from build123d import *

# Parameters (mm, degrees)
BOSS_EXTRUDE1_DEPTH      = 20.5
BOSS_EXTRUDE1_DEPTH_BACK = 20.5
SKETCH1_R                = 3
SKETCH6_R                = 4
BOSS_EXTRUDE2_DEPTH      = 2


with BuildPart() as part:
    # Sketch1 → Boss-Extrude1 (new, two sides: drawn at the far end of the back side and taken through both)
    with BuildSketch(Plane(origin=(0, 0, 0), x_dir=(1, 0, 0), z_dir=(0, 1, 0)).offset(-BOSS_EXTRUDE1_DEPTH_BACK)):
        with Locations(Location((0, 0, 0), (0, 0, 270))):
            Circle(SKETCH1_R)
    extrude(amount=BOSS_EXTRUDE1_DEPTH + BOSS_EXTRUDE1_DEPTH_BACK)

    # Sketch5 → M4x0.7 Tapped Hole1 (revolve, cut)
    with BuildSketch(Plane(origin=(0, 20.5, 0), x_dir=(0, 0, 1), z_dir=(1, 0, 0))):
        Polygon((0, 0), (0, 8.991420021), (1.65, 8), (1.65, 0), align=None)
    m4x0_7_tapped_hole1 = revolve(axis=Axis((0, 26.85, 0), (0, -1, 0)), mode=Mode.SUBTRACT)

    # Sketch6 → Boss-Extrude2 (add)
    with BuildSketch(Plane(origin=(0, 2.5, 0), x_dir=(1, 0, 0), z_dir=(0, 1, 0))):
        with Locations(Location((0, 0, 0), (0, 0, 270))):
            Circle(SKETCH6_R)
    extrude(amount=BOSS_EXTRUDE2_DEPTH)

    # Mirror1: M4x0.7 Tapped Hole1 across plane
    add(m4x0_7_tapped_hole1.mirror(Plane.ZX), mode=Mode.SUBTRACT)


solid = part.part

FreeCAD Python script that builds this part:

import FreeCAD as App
import Part
import Sketcher

V = App.Vector
Q = App.Units.Quantity


def add_polygon(sketch, points):
    """Adds a closed chain of lines whose ends are joined by coincident constraints."""
    first, n = sketch.GeometryCount, len(points)
    for a, b in zip(points, points[1:] + points[:1]):
        sketch.addGeometry(Part.LineSegment(App.Vector(*a, 0), App.Vector(*b, 0)), False)
    for i in range(n):
        sketch.addConstraint(Sketcher.Constraint("Coincident", first + i, 2, first + (i + 1) % n, 1))

doc = App.newDocument("Part")
body = doc.addObject("PartDesign::Body", "Body")

# Sketch on XZ plane
sketch1 = body.newObject("Sketcher::SketchObject", "Sketch")
sketch1.AttachmentSupport = (doc.getObject("XZ_Plane"), [""])
sketch1.MapMode = "FlatFace"
sketch1.addGeometry(Part.Circle(V(0, 0, 0), V(0, 0, 1), 3), False)
sketch1.addConstraint([
    Sketcher.Constraint("Coincident", 0, 3, -1, 1),
    Sketcher.Constraint("Diameter", 0, Q("6 mm")),
])
pad1 = body.newObject("PartDesign::Pad", "Pad")
pad1.Profile = sketch1
pad1.Type = "TwoLengths"
pad1.Length = 20.5
pad1.Length2 = 20.5
pad1.Reversed = True

# Sketch on YZ plane
sketch2 = body.newObject("Sketcher::SketchObject", "Sketch001")
sketch2.AttachmentSupport = (doc.getObject("YZ_Plane"), [""])
sketch2.MapMode = "FlatFace"
add_polygon(sketch2, [(11.5, 0), (20.5, 0), (20.5, 1.6), (12.5, 1.6)])  # lines 0-3
sketch2.addConstraint([
    Sketcher.Constraint("Horizontal", 0),
    Sketcher.Constraint("Vertical", 1),
    Sketcher.Constraint("Horizontal", 2),
    Sketcher.Constraint("PointOnObject", 0, 2, -1),
    Sketcher.Constraint("DistanceX", 2, 2, 2, 1, Q("8 mm")),
    Sketcher.Constraint("Angle", 3, Q("-121 deg")),
    Sketcher.Constraint("DistanceY", 1, 1, 1, 2, Q("1.65 mm")),
    Sketcher.Constraint("DistanceX", -1, 1, 0, 2, Q("20.5 mm")),
])
groove = body.newObject("PartDesign::Groove", "Groove")
groove.Profile = sketch2
groove.ReferenceAxis = (sketch2, ["H_Axis"])
groove.Angle = 360

# Sketch on XZ plane
sketch3 = body.newObject("Sketcher::SketchObject", "Sketch002")
sketch3.AttachmentSupport = (doc.getObject("XZ_Plane"), [""])
sketch3.MapMode = "FlatFace"
sketch3.AttachmentOffset = App.Placement(V(0, 0, -2.5), App.Rotation())
sketch3.addGeometry(Part.Circle(V(0, 0, 0), V(0, 0, 1), 4), False)
sketch3.addConstraint([
    Sketcher.Constraint("Coincident", 0, 3, -1, 1),
    Sketcher.Constraint("Diameter", 0, Q("8 mm")),
])
pad2 = body.newObject("PartDesign::Pad", "Pad001")
pad2.Profile = sketch3
pad2.Length = 2
pad2.Reversed = True
doc.recompute()

mirrored = body.newObject("PartDesign::Mirrored", "Mirrored")
mirrored.Originals = [groove]
mirrored.MirrorPlane = (doc.getObject("XZ_Plane"), [""])
body.Tip = mirrored

doc.recompute()
